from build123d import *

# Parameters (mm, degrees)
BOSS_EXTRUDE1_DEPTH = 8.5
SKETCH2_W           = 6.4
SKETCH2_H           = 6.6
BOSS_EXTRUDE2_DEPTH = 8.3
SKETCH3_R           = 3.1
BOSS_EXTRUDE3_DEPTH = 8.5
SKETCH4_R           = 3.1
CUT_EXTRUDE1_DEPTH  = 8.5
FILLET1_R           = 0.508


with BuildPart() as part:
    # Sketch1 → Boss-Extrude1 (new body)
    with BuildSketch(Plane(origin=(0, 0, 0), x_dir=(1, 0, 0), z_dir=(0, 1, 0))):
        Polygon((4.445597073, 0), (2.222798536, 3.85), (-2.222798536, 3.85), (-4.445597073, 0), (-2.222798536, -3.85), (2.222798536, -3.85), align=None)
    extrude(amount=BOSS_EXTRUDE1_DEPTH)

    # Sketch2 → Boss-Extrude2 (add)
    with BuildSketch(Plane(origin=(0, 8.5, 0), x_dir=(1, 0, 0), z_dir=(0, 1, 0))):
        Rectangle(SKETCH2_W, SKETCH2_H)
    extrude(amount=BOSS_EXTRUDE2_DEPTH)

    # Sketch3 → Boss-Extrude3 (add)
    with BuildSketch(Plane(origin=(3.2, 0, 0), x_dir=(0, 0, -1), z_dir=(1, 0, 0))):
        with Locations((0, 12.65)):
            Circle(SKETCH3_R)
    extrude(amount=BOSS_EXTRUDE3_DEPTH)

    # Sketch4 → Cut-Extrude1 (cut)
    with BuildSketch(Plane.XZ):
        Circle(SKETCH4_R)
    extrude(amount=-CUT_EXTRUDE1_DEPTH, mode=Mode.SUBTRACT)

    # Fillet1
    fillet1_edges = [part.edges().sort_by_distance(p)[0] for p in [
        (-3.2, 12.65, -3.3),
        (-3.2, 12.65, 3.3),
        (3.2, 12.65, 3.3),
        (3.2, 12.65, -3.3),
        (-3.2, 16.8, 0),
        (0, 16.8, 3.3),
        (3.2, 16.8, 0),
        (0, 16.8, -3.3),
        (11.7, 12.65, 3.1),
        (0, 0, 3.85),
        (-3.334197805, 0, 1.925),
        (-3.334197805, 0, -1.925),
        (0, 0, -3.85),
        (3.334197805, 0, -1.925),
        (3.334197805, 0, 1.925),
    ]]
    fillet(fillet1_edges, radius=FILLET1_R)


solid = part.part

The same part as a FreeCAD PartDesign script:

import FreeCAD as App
import Part
import Sketcher

V = App.Vector
Q = App.Units.Quantity


def edges_at(feature, points):
    """Names of the edges that pass closest to the given points."""
    edges = feature.Shape.Edges
    near = lambda p: min(range(len(edges)), key=lambda i: edges[i].distToShape(Part.Vertex(*p))[0])
    return sorted({f"Edge{near(p) + 1}" for p in points})


def add_polygon(sketch, points):
    """Adds a closed chain of lines whose ends are joined by coincident constraints."""
    first, n = sketch.GeometryCount, len(points)
    for a, b in zip(points, points[1:] + points[:1]):
        sketch.addGeometry(Part.LineSegment(App.Vector(*a, 0), App.Vector(*b, 0)), False)
    for i in range(n):
        sketch.addConstraint(Sketcher.Constraint("Coincident", first + i, 2, first + (i + 1) % n, 1))

doc = App.newDocument("Part")
body = doc.addObject("PartDesign::Body", "Body")

# Sketch on XZ plane
sketch1 = doc.addObject("Sketcher::SketchObject", "Sketch")
body.addObject(sketch1)
sketch1.AttachmentSupport = (doc.XZ_Plane, [""])
sketch1.MapMode = "FlatFace"
add_polygon(sketch1, [(4.445597, 0), (2.222799, -3.85), (-2.222799, -3.85), (-4.445597, 0), (-2.222799, 3.85), (2.222799, 3.85)])  # lines 0-5
sketch1.addConstraint(Sketcher.Constraint("Horizontal", 1))
sketch1.addConstraint(Sketcher.Constraint("Horizontal", 4))
sketch1.addConstraint(Sketcher.Constraint("Symmetric", 0, 2, 3, 2, -1, 1))
sketch1.addConstraint(Sketcher.Constraint("Symmetric", 2, 2, 5, 2, -1, 1))
sketch1.addConstraint(Sketcher.Constraint("PointOnObject", 2, 2, -1))
sketch1.addConstraint(Sketcher.Constraint("Parallel", 2, 5))
sketch1.addConstraint(Sketcher.Constraint("Vertical", 1, 2, 3, 2))
sketch1.addConstraint(Sketcher.Constraint("Angle", 0, Q("-120 deg")))
sketch1.addConstraint(Sketcher.Constraint("DistanceY", 1, 2, 3, 2, Q("7.7 mm")))
sketch1.addConstraint(Sketcher.Constraint("DistanceX", -1, 1, 0, 2, Q("2.222799 mm")))
pad1 = doc.addObject("PartDesign::Pad", "Pad")
body.addObject(pad1)
pad1.Profile = sketch1
pad1.Length = 8.5
pad1.Reversed = True

# Sketch on XZ plane
sketch2 = doc.addObject("Sketcher::SketchObject", "Sketch001")
body.addObject(sketch2)
sketch2.AttachmentSupport = (doc.XZ_Plane, [""])
sketch2.MapMode = "FlatFace"
sketch2.AttachmentOffset = App.Placement(V(0, 0, -8.5), App.Rotation())
add_polygon(sketch2, [(-3.2, -3.3), (-3.2, 3.3), (3.2, 3.3), (3.2, -3.3)])  # lines 0-3
sketch2.addConstraint(Sketcher.Constraint("Vertical", 0))
sketch2.addConstraint(Sketcher.Constraint("Horizontal", 1))
sketch2.addConstraint(Sketcher.Constraint("Vertical", 2))
sketch2.addConstraint(Sketcher.Constraint("Horizontal", 3))
sketch2.addConstraint(Sketcher.Constraint("Symmetric", 0, 2, 2, 2, -1, 1))
sketch2.addConstraint(Sketcher.Constraint("DistanceX", 1, 1, 1, 2, Q("6.4 mm")))
sketch2.addConstraint(Sketcher.Constraint("DistanceY", 0, 1, 0, 2, Q("6.6 mm")))
pad2 = doc.addObject("PartDesign::Pad", "Pad001")
body.addObject(pad2)
pad2.Profile = sketch2
pad2.Length = 8.3
pad2.Reversed = True

# Sketch on YZ plane
sketch3 = doc.addObject("Sketcher::SketchObject", "Sketch002")
body.addObject(sketch3)
sketch3.AttachmentSupport = (doc.YZ_Plane, [""])
sketch3.MapMode = "FlatFace"
sketch3.AttachmentOffset = App.Placement(V(0, 0, 3.2), App.Rotation())
sketch3.addGeometry(Part.Circle(V(12.65, 0, 0), V(0, 0, 1), 3.1), False)
sketch3.addConstraint(Sketcher.Constraint("PointOnObject", 0, 3, -1))
sketch3.addConstraint(Sketcher.Constraint("Diameter", 0, Q("6.2 mm")))
sketch3.addConstraint(Sketcher.Constraint("DistanceX", -1, 1, 0, 3, Q("12.65 mm")))
pad3 = doc.addObject("PartDesign::Pad", "Pad002")
body.addObject(pad3)
pad3.Profile = sketch3
pad3.Length = 8.5

# Sketch on XZ plane
sketch4 = doc.addObject("Sketcher::SketchObject", "Sketch003")
body.addObject(sketch4)
sketch4.AttachmentSupport = (doc.XZ_Plane, [""])
sketch4.MapMode = "FlatFace"
sketch4.addGeometry(Part.Circle(V(0, 0, 0), V(0, 0, 1), 3.1), False)
sketch4.addConstraint(Sketcher.Constraint("Coincident", 0, 3, -1, 1))
sketch4.addConstraint(Sketcher.Constraint("Diameter", 0, Q("6.2 mm")))
pocket1 = doc.addObject("PartDesign::Pocket", "Pocket")
body.addObject(pocket1)
pocket1.Profile = sketch4
pocket1.Length = 8.5
doc.recompute()

fillet = doc.addObject("PartDesign::Fillet", "Fillet")
body.addObject(fillet)
fillet.Base = (pocket1, edges_at(pocket1, [
    (-3.2, 12.65, -3.3),
    (-3.2, 12.65, 3.3),
    (3.2, 12.65, 3.3),
    (3.2, 12.65, -3.3),
    (-3.2, 16.8, 0),
    (0, 16.8, 3.3),
    (3.2, 16.8, 0),
    (0, 16.8, -3.3),
    (11.7, 12.65, 3.1),
    (0, 0, 3.85),
    (-3.334, 0, 1.925),
    (-3.334, 0, -1.925),
    (0, 0, -3.85),
    (3.334, 0, -1.925),
    (3.334, 0, 1.925),
]))
fillet.Radius = 0.508

doc.recompute()
